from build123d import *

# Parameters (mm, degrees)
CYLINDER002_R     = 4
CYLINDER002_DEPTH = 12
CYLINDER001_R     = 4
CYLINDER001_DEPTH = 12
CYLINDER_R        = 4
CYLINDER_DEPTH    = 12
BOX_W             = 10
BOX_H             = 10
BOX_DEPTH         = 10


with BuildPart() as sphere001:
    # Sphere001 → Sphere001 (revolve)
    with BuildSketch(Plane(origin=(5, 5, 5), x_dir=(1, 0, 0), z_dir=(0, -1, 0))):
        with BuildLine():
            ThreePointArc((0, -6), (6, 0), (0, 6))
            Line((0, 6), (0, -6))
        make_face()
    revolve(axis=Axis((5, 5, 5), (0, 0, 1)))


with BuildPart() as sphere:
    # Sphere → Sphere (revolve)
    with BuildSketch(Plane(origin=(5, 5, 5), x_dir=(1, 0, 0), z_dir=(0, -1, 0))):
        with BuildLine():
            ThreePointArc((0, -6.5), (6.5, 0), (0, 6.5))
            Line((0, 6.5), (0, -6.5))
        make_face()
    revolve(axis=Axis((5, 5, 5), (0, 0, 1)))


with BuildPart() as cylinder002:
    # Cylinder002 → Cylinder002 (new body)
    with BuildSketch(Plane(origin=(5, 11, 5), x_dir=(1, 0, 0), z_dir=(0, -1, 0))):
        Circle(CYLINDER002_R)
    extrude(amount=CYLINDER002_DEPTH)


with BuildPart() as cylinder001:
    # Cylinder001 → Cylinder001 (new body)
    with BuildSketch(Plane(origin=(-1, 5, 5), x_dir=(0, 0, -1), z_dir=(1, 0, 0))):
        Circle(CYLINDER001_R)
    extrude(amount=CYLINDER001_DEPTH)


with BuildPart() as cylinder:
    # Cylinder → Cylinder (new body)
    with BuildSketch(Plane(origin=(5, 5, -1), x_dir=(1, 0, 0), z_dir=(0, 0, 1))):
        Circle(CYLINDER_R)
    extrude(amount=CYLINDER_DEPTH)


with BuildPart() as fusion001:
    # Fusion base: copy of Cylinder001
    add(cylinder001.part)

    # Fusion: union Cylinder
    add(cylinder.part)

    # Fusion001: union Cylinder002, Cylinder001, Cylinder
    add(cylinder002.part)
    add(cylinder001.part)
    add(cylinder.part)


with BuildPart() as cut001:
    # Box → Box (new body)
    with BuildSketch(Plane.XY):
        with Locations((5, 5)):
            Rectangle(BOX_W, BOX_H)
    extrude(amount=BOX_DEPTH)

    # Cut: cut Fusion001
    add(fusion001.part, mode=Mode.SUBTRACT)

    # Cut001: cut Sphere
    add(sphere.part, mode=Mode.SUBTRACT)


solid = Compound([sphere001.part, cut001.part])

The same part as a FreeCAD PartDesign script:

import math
import FreeCAD as App
import Part
import Sketcher
from FreeCAD import Vector


def add_polygon(sketch, points):
    """Adds a closed chain of lines whose ends are joined by coincident constraints."""
    first, n = sketch.GeometryCount, len(points)
    for a, b in zip(points, points[1:] + points[:1]):
        sketch.addGeometry(Part.LineSegment(App.Vector(*a, 0), App.Vector(*b, 0)), False)
    for i in range(n):
        sketch.addConstraint(Sketcher.Constraint("Coincident", first + i, 2, first + (i + 1) % n, 1))

doc = App.newDocument("Part")
body = doc.addObject("PartDesign::Body", "Body")

# Sketch on XZ plane
sketch1 = body.newObject("Sketcher::SketchObject", "Sketch")
sketch1.AttachmentSupport = (doc.getObject("XZ_Plane"), [""])
sketch1.MapMode = "FlatFace"
sketch1.AttachmentOffset = App.Placement(Vector(0, 0, -5), App.Rotation())
sketch1.addGeometry([
    Part.ArcOfCircle(Part.Circle(Vector(5, 5, 0), Vector(0, 0, 1), 6), math.radians(-90), math.radians(90)),
    Part.LineSegment(Vector(5, 11, 0), Vector(5, -1, 0)),
], False)
sketch1.addGeometry(Part.LineSegment(Vector(5, -1, 0), Vector(5, 11, 0)), True)  # axis
sketch1.addConstraint([
    Sketcher.Constraint("Coincident", 0, 1, 1, 2),
    Sketcher.Constraint("Coincident", 1, 1, 0, 2),
    Sketcher.Constraint("Vertical", 1),
    Sketcher.Constraint("Vertical", 2),
    Sketcher.Constraint("Coincident", 2, 1, 0, 1),
    Sketcher.Constraint("Equal", 1, 2),
    Sketcher.Constraint("Radius", 0, 6.0),
    Sketcher.Constraint("DistanceX", -1, 1, 0, 3, 5.0),
    Sketcher.Constraint("DistanceY", -1, 1, 0, 3, 5.0),
    Sketcher.Constraint("DistanceX", -1, 1, 0, 1, 5.0),
])
revolution = body.newObject("PartDesign::Revolution", "Revolution")
revolution.Profile = sketch1
revolution.ReferenceAxis = (sketch1, ["Axis0"])
revolution.Angle = 360
body2 = doc.addObject("PartDesign::Body", "Body001")

# Sketch on XZ plane
sketch2 = body2.newObject("Sketcher::SketchObject", "Sketch001")
sketch2.AttachmentSupport = (doc.getObject("XZ_Plane001"), [""])
sketch2.MapMode = "FlatFace"
sketch2.AttachmentOffset = App.Placement(Vector(0, 0, -5), App.Rotation())
sketch2.addGeometry([
    Part.ArcOfCircle(Part.Circle(Vector(5, 5, 0), Vector(0, 0, 1), 6), math.radians(-90), math.radians(90)),
    Part.LineSegment(Vector(5, 12, 0), Vector(5, -2, 0)),
], False)
sketch2.addGeometry(Part.LineSegment(Vector(5, -2, 0), Vector(5, 12, 0)), True)  # axis
sketch2.addConstraint([
    Sketcher.Constraint("Coincident", 0, 1, 1, 2),
    Sketcher.Constraint("Coincident", 1, 1, 0, 2),
    Sketcher.Constraint("Vertical", 1),
    Sketcher.Constraint("Vertical", 2),
    Sketcher.Constraint("Coincident", 2, 1, 0, 1),
    Sketcher.Constraint("Equal", 1, 2),
    Sketcher.Constraint("Radius", 0, 6.5),
    Sketcher.Constraint("DistanceX", -1, 1, 0, 3, 5.0),
    Sketcher.Constraint("DistanceY", -1, 1, 0, 3, 5.0),
    Sketcher.Constraint("DistanceX", -1, 1, 0, 1, 5.0),
])
revolution2 = body2.newObject("PartDesign::Revolution", "Revolution001")
revolution2.Profile = sketch2
revolution2.ReferenceAxis = (sketch2, ["Axis0"])
revolution2.Angle = 360
body3 = doc.addObject("PartDesign::Body", "Body002")

# Sketch on XZ plane
sketch3 = body3.newObject("Sketcher::SketchObject", "Sketch002")
sketch3.AttachmentSupport = (doc.getObject("XZ_Plane002"), [""])
sketch3.MapMode = "FlatFace"
sketch3.AttachmentOffset = App.Placement(Vector(0, 0, -11), App.Rotation())
sketch3.addGeometry(Part.Circle(Vector(5, 5, 0), Vector(0, 0, 1), 4), False)
sketch3.addConstraint([
    Sketcher.Constraint("Diameter", 0, 8.0),
    Sketcher.Constraint("DistanceX", -1, 1, 0, 3, 5.0),
    Sketcher.Constraint("DistanceY", -1, 1, 0, 3, 5.0),
])
pad1 = body3.newObject("PartDesign::Pad", "Pad")
pad1.Profile = sketch3
pad1.Length = 12
body4 = doc.addObject("PartDesign::Body", "Body003")

# Sketch on YZ plane
sketch4 = body4.newObject("Sketcher::SketchObject", "Sketch003")
sketch4.AttachmentSupport = (doc.getObject("YZ_Plane003"), [""])
sketch4.MapMode = "FlatFace"
sketch4.AttachmentOffset = App.Placement(Vector(0, 0, -1), App.Rotation())
sketch4.addGeometry(Part.Circle(Vector(5, 5, 0), Vector(0, 0, 1), 4), False)
sketch4.addConstraint([
    Sketcher.Constraint("Diameter", 0, 8.0),
    Sketcher.Constraint("DistanceX", -1, 1, 0, 3, 5.0),
    Sketcher.Constraint("DistanceY", -1, 1, 0, 3, 5.0),
])
pad2 = body4.newObject("PartDesign::Pad", "Pad001")
pad2.Profile = sketch4
pad2.Length = 12
body5 = doc.addObject("PartDesign::Body", "Body004")

# Sketch on XY plane
sketch5 = body5.newObject("Sketcher::SketchObject", "Sketch004")
sketch5.AttachmentSupport = (doc.getObject("XY_Plane004"), [""])
sketch5.MapMode = "FlatFace"
sketch5.AttachmentOffset = App.Placement(Vector(0, 0, -1), App.Rotation())
sketch5.addGeometry(Part.Circle(Vector(5, 5, 0), Vector(0, 0, 1), 4), False)
sketch5.addConstraint([
    Sketcher.Constraint("Diameter", 0, 8.0),
    Sketcher.Constraint("DistanceX", -1, 1, 0, 3, 5.0),
    Sketcher.Constraint("DistanceY", -1, 1, 0, 3, 5.0),
])
pad3 = body5.newObject("PartDesign::Pad", "Pad002")
pad3.Profile = sketch5
pad3.Length = 12
body6 = doc.addObject("PartDesign::Body", "Body005")
doc.recompute()

body6.BaseFeature = body4
doc.recompute()

body7 = doc.addObject("PartDesign::Body", "Body006")
body7.BaseFeature = body5
boolean = body6.newObject("PartDesign::Boolean", "Boolean")
boolean.Type = "Fuse"
boolean.addObjects([body7])
doc.recompute()

boolean2 = body6.newObject("PartDesign::Boolean", "Boolean001")
boolean2.Type = "Fuse"
boolean2.addObjects([body3])
doc.recompute()

boolean3 = body6.newObject("PartDesign::Boolean", "Boolean002")
boolean3.Type = "Fuse"
boolean3.addObjects([body4])
doc.recompute()

boolean4 = body6.newObject("PartDesign::Boolean", "Boolean003")
boolean4.Type = "Fuse"
boolean4.addObjects([body5])
body8 = doc.addObject("PartDesign::Body", "Body007")

# Sketch on XY plane
sketch6 = body8.newObject("Sketcher::SketchObject", "Sketch005")
sketch6.AttachmentSupport = (doc.getObject("XY_Plane007"), [""])
sketch6.MapMode = "FlatFace"
add_polygon(sketch6, [(0, 10), (0, 0), (10, 0), (10, 10)])  # lines 0-3
sketch6.addConstraint([
    Sketcher.Constraint("Vertical", 0),
    Sketcher.Constraint("Horizontal", 1),
    Sketcher.Constraint("Vertical", 2),
    Sketcher.Constraint("Horizontal", 3),
    Sketcher.Constraint("Coincident", 0, 2, -1, 1),
    Sketcher.Constraint("Equal", 3, 0),
    Sketcher.Constraint("DistanceX", 1, 1, 1, 2, 10.0),
])
pad4 = body8.newObject("PartDesign::Pad", "Pad003")
pad4.Profile = sketch6
pad4.Length = 10
doc.recompute()

boolean5 = body8.newObject("PartDesign::Boolean", "Boolean004")
boolean5.Type = "Cut"
boolean5.addObjects([body6])
doc.recompute()

boolean6 = body8.newObject("PartDesign::Boolean", "Boolean005")
boolean6.Type = "Cut"
boolean6.addObjects([body2])

doc.recompute()
